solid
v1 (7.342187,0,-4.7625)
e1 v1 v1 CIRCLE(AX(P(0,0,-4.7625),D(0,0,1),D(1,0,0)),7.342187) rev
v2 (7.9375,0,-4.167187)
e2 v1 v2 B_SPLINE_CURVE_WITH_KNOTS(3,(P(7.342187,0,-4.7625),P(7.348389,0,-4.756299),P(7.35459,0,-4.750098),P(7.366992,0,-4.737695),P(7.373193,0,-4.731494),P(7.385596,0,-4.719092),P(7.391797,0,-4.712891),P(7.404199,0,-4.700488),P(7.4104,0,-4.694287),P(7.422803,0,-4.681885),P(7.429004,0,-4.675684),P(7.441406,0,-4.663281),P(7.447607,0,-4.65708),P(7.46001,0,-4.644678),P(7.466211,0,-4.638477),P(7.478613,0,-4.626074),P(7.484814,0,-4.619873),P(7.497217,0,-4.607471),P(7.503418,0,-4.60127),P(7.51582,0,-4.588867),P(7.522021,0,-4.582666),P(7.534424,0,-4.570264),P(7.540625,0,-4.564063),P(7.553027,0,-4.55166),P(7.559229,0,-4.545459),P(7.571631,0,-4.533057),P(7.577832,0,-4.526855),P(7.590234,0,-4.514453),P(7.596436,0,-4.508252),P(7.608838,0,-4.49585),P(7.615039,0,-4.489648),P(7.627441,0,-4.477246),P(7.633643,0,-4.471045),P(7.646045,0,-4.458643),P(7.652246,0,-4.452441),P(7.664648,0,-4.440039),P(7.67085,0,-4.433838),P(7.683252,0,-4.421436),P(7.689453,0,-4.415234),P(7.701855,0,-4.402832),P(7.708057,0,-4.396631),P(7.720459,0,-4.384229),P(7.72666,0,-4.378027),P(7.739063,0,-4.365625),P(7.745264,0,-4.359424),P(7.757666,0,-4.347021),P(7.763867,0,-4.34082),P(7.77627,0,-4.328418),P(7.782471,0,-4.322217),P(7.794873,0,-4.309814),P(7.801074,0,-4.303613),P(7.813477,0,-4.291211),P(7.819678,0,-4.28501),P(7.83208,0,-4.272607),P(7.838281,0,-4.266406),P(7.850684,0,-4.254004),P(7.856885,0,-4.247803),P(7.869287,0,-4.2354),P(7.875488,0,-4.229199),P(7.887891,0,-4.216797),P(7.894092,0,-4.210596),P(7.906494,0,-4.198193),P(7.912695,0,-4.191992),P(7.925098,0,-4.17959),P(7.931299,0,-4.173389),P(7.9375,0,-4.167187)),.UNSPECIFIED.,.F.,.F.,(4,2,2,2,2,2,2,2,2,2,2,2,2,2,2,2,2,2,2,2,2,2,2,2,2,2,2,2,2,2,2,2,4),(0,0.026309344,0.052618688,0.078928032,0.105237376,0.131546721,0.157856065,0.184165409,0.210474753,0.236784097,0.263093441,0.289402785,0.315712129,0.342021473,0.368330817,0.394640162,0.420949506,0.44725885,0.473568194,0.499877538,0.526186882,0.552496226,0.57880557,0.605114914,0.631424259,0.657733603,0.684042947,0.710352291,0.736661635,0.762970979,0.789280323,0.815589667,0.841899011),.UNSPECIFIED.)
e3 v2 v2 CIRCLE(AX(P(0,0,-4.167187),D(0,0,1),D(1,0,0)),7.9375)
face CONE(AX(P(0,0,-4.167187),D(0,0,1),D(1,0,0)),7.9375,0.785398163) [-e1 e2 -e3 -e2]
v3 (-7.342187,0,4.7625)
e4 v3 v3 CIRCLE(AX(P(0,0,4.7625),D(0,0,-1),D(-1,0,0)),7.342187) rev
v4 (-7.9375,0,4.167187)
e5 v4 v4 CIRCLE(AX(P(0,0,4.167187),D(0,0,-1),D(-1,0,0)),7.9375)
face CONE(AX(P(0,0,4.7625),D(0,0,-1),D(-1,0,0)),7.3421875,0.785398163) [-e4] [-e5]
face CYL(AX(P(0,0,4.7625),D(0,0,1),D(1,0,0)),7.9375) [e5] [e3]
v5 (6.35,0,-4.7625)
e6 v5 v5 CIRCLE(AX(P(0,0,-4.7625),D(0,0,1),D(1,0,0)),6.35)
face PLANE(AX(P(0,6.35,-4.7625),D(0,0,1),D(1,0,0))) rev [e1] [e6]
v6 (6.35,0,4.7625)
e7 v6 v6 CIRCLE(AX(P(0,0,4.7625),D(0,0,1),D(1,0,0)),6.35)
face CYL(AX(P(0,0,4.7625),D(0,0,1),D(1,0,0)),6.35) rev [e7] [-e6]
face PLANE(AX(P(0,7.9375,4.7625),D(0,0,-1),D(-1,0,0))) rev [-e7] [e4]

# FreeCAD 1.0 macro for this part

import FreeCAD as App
import Part
import Sketcher
from FreeCAD import Vector
Q = App.Units.Quantity


def edges_at(feature, points):
    """Names of the edges that pass closest to the given points."""
    edges = feature.Shape.Edges
    near = lambda p: min(range(len(edges)), key=lambda i: edges[i].distToShape(Part.Vertex(*p))[0])
    return sorted({f"Edge{near(p) + 1}" for p in points})


def add_polygon(sketch, points):
    """Adds a closed chain of lines whose ends are joined by coincident constraints."""
    first, n = sketch.GeometryCount, len(points)
    for a, b in zip(points, points[1:] + points[:1]):
        sketch.addGeometry(Part.LineSegment(App.Vector(*a, 0), App.Vector(*b, 0)), False)
    for i in range(n):
        sketch.addConstraint(Sketcher.Constraint("Coincident", first + i, 2, first + (i + 1) % n, 1))

doc = App.newDocument("Part")
body = doc.addObject("PartDesign::Body", "Body")

sketch1 = body.newObject("Sketcher::SketchObject", "Sketch")
sketch1.AttachmentSupport = (doc.getObject("YZ_Plane"), [""])
sketch1.MapMode = "FlatFace"
add_polygon(sketch1, [(7.9375, 4.7625), (6.35, 4.7625), (6.35, -4.7625), (7.9375, -4.7625)])
sketch1.addConstraint([
    Sketcher.Constraint("Horizontal", 0),
    Sketcher.Constraint("Vertical", 1),
    Sketcher.Constraint("Horizontal", 2),
    Sketcher.Constraint("Vertical", 3),
    Sketcher.Constraint("DistanceX", 0, 2, 0, 1, Q("0.0625 in")),
    Sketcher.Constraint("DistanceY", 1, 2, 1, 1, Q("0.375 in")),
    Sketcher.Constraint("DistanceX", -1, 1, 0, 2, Q("0.25 in")),
    Sketcher.Constraint("DistanceY", -1, 1, 0, 2, Q("0.1875 in")),
])
revolution = body.newObject("PartDesign::Revolution", "Revolution")
revolution.Profile = sketch1
revolution.ReferenceAxis = (sketch1, ["V_Axis"])
revolution.Angle = 360
doc.recompute()

chamfer = body.newObject("PartDesign::Chamfer", "Chamfer")
chamfer.Base = (revolution, edges_at(revolution, [(-7.938, 0, 4.763), (-7.938, 0, -4.763)]))
chamfer.Size = 0.595313

doc.recompute()
